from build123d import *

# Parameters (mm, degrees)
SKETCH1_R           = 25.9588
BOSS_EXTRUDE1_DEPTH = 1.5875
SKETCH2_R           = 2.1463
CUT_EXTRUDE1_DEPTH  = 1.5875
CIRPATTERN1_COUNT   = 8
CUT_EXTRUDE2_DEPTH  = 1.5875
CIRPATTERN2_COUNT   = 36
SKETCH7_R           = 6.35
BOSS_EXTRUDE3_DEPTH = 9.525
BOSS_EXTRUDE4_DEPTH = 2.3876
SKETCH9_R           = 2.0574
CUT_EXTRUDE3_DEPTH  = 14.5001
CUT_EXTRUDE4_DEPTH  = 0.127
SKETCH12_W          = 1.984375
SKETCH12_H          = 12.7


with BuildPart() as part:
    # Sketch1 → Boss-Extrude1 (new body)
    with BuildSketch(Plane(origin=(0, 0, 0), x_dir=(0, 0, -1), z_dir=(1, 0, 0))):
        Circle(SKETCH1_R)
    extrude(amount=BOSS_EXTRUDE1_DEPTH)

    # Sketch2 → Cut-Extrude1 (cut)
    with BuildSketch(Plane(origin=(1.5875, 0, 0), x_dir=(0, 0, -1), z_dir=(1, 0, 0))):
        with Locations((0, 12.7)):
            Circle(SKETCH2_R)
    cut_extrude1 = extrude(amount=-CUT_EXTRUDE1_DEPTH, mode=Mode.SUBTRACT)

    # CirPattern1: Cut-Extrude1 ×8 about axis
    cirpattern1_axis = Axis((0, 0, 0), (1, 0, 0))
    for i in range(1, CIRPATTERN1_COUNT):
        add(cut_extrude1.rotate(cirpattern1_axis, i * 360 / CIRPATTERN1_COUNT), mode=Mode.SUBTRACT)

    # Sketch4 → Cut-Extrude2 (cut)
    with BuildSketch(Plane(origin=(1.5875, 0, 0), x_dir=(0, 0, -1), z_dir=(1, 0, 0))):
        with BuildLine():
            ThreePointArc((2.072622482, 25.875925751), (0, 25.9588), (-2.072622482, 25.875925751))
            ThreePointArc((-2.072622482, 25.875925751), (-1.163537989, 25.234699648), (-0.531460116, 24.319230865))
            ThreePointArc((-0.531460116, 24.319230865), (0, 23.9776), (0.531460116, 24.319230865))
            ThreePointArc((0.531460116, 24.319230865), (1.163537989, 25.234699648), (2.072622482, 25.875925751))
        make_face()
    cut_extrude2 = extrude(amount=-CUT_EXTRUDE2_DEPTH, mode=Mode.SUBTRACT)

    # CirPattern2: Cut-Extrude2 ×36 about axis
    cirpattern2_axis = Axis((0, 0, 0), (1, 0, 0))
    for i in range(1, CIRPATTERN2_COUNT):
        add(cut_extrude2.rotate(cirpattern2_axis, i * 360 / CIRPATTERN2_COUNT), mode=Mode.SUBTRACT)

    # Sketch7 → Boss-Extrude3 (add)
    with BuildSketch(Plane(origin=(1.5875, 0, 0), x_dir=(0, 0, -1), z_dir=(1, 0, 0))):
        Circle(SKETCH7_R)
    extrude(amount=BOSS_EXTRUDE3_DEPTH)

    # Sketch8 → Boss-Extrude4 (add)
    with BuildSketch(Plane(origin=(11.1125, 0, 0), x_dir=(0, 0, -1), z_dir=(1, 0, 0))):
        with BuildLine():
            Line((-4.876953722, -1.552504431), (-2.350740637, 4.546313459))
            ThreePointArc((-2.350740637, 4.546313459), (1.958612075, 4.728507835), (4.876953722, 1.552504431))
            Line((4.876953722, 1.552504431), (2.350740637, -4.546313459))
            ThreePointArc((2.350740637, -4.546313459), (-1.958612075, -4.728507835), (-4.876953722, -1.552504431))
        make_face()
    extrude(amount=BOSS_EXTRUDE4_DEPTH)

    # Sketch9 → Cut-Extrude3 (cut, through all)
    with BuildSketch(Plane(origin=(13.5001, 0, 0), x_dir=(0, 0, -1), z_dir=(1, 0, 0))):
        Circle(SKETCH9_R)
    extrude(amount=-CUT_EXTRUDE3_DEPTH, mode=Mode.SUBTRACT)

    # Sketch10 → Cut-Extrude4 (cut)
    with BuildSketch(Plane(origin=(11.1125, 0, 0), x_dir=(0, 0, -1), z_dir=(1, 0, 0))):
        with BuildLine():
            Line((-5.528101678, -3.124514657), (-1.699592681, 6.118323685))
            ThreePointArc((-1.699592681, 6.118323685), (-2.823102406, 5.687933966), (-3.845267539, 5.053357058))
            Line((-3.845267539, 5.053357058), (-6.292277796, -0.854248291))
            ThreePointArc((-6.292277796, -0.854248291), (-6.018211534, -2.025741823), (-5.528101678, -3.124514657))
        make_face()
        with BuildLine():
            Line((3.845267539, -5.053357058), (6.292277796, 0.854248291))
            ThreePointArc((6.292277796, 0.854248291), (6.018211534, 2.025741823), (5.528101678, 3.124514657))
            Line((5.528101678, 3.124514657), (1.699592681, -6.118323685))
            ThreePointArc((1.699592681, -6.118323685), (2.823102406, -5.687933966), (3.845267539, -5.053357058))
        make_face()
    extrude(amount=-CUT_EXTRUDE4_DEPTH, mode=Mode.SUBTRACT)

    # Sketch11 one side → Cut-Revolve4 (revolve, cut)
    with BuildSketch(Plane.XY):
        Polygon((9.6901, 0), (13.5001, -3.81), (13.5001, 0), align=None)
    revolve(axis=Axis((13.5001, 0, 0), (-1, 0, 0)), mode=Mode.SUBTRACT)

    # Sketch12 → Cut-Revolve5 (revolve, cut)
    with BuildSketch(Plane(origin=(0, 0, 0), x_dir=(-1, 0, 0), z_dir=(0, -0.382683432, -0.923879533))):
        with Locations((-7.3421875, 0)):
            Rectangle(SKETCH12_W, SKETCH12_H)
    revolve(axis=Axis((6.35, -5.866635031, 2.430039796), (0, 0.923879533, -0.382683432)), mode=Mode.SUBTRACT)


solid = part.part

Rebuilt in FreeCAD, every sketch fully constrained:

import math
import FreeCAD as App
import Part
import Sketcher
from FreeCAD import Vector
Q = App.Units.Quantity

doc = App.newDocument("Part")
body = doc.addObject("PartDesign::Body", "Body")

# Sketch on YZ plane
sketch1 = body.newObject("Sketcher::SketchObject", "Sketch")
sketch1.AttachmentSupport = (doc.getObject("YZ_Plane"), [""])
sketch1.MapMode = "FlatFace"
sketch1.addGeometry(Part.Circle(Vector(0, 0, 0), Vector(0, 0, 1), 26), False)
sketch1.addConstraint(Sketcher.Constraint("Coincident", 0, 3, -1, 1))
sketch1.addConstraint(Sketcher.Constraint("Diameter", 0, Q("2.044 in")))
pad1 = body.newObject("PartDesign::Pad", "Pad")
pad1.Profile = sketch1
pad1.Length = Q("0.0625 in")

# Sketch on YZ plane
sketch2 = body.newObject("Sketcher::SketchObject", "Sketch001")
sketch2.AttachmentSupport = (doc.getObject("YZ_Plane"), [""])
sketch2.MapMode = "FlatFace"
sketch2.AttachmentOffset = App.Placement(Vector(0, 0, 0.0625 * 25.4), App.Rotation())
sketch2.addGeometry(Part.Circle(Vector(12.7, 0, 0), Vector(0, 0, 1), 2.1), False)
sketch2.addConstraint(Sketcher.Constraint("PointOnObject", 0, 3, -1))
sketch2.addConstraint(Sketcher.Constraint("Diameter", 0, Q("0.169 in")))
sketch2.addConstraint(Sketcher.Constraint("DistanceX", -1, 1, 0, 3, Q("0.5 in")))
pocket1 = body.newObject("PartDesign::Pocket", "Pocket")
pocket1.Profile = sketch2
pocket1.Length = Q("0.0625 in")
doc.recompute()

polarpattern = body.newObject("PartDesign::PolarPattern", "PolarPattern")
polarpattern.Originals = [pocket1]
polarpattern.Axis = (doc.getObject("X_Axis"), [""])
polarpattern.Angle = 360
polarpattern.Occurrences = 8
body.Tip = polarpattern

# Sketch on YZ plane
sketch3 = body.newObject("Sketcher::SketchObject", "Sketch002")
sketch3.AttachmentSupport = (doc.getObject("YZ_Plane"), [""])
sketch3.MapMode = "FlatFace"
sketch3.AttachmentOffset = App.Placement(Vector(0, 0, 0.0625 * 25.4), App.Rotation())
sketch3.addGeometry(Part.ArcOfCircle(Part.Circle(Vector(0, 0, 0), Vector(0, 0, 1), 26), math.radians(-4.58), math.radians(4.58)), False)
sketch3.addGeometry(Part.ArcOfCircle(Part.Circle(Vector(23, 3.4, 0), Vector(0, 0, 1), 3.2), math.radians(-65), math.radians(-25)), False)
sketch3.addGeometry(Part.ArcOfCircle(Part.Circle(Vector(24.6, 0, 0), Vector(0, 0, 1), 0.6), math.radians(115), math.radians(245)), False)
sketch3.addGeometry(Part.ArcOfCircle(Part.Circle(Vector(23, -3.4, 0), Vector(0, 0, 1), 3.2), math.radians(25), math.radians(65)), False)
sketch3.addConstraint(Sketcher.Constraint("Coincident", 0, 2, 1, 2))
sketch3.addConstraint(Sketcher.Constraint("Tangent", 1, 1, 2, 1))
sketch3.addConstraint(Sketcher.Constraint("Tangent", 2, 2, 3, 2))
sketch3.addConstraint(Sketcher.Constraint("Coincident", 3, 1, 0, 1))
sketch3.addConstraint(Sketcher.Constraint("Coincident", 0, 3, -1, 1))
sketch3.addConstraint(Sketcher.Constraint("Equal", 1, 3))
sketch3.addConstraint(Sketcher.Constraint("Symmetric", 1, 3, 3, 3, -1))
sketch3.addConstraint(Sketcher.Constraint("Radius", 0, Q("1.022 in")))
sketch3.addConstraint(Sketcher.Constraint("Radius", 1, Q("0.125 in")))
sketch3.addConstraint(Sketcher.Constraint("Radius", 2, Q("0.023 in")))
sketch3.addConstraint(Sketcher.Constraint("DistanceX", -1, 1, 2, 3, Q("0.967 in")))
sketch3.addConstraint(Sketcher.Constraint("DistanceX", -1, 1, 1, 3, Q("23.00092 mm")))
pocket2 = body.newObject("PartDesign::Pocket", "Pocket001")
pocket2.Profile = sketch3
pocket2.Length = Q("0.0625 in")
doc.recompute()

polarpattern2 = body.newObject("PartDesign::PolarPattern", "PolarPattern001")
polarpattern2.Originals = [pocket2]
polarpattern2.Axis = (doc.getObject("X_Axis"), [""])
polarpattern2.Angle = 360
polarpattern2.Occurrences = 36
body.Tip = polarpattern2

# Sketch on YZ plane
sketch4 = body.newObject("Sketcher::SketchObject", "Sketch003")
sketch4.AttachmentSupport = (doc.getObject("YZ_Plane"), [""])
sketch4.MapMode = "FlatFace"
sketch4.AttachmentOffset = App.Placement(Vector(0, 0, 0.0625 * 25.4), App.Rotation())
sketch4.addGeometry(Part.Circle(Vector(0, 0, 0), Vector(0, 0, 1), 6), False)
sketch4.addConstraint(Sketcher.Constraint("Coincident", 0, 3, -1, 1))
sketch4.addConstraint(Sketcher.Constraint("Diameter", 0, Q("0.5 in")))
pad2 = body.newObject("PartDesign::Pad", "Pad001")
pad2.Profile = sketch4
pad2.Length = Q("0.375 in")

# Sketch on YZ plane
sketch5 = body.newObject("Sketcher::SketchObject", "Sketch004")
sketch5.AttachmentSupport = (doc.getObject("YZ_Plane"), [""])
sketch5.MapMode = "FlatFace"
sketch5.AttachmentOffset = App.Placement(Vector(0, 0, 0.4375 * 25.4), App.Rotation())
sketch5.addGeometry(Part.LineSegment(Vector(5, 2, 0), Vector(-2, 5, 0)), False)
sketch5.addGeometry(Part.ArcOfCircle(Part.Circle(Vector(0, 0, 0), Vector(0, 0, 1), 5), math.radians(108), math.radians(207)), False)
sketch5.addGeometry(Part.LineSegment(Vector(-5, -2, 0), Vector(2, -5, 0)), False)
sketch5.addGeometry(Part.ArcOfCircle(Part.Circle(Vector(0, 0, 0), Vector(0, 0, 1), 5), math.radians(-72), math.radians(27)), False)
sketch5.addConstraint(Sketcher.Constraint("Coincident", 0, 2, 1, 1))
sketch5.addConstraint(Sketcher.Constraint("Coincident", 1, 2, 2, 1))
sketch5.addConstraint(Sketcher.Constraint("Coincident", 2, 2, 3, 1))
sketch5.addConstraint(Sketcher.Constraint("Coincident", 3, 2, 0, 1))
sketch5.addConstraint(Sketcher.Constraint("Coincident", 1, 3, -1, 1))
sketch5.addConstraint(Sketcher.Constraint("Coincident", 3, 3, -1, 1))
sketch5.addConstraint(Sketcher.Constraint("Equal", 1, 3))
sketch5.addConstraint(Sketcher.Constraint("Parallel", 0, 2))
sketch5.addConstraint(Sketcher.Constraint("Equal", 0, 2))
sketch5.addConstraint(Sketcher.Constraint("Angle", 0, Q("157.5 deg")))
sketch5.addConstraint(Sketcher.Constraint("Radius", 1, Q("0.2015 in")))
sketch5.addConstraint(Sketcher.Constraint("DistanceY", 1, 2, -1, 1, Q("2.350741 mm")))
pad3 = body.newObject("PartDesign::Pad", "Pad002")
pad3.Profile = sketch5
pad3.Length = Q("0.094 in")

# Sketch on YZ plane
sketch6 = body.newObject("Sketcher::SketchObject", "Sketch005")
sketch6.AttachmentSupport = (doc.getObject("YZ_Plane"), [""])
sketch6.MapMode = "FlatFace"
sketch6.AttachmentOffset = App.Placement(Vector(0, 0, 0.5315 * 25.4), App.Rotation())
sketch6.addGeometry(Part.Circle(Vector(0, 0, 0), Vector(0, 0, 1), 2.1), False)
sketch6.addConstraint(Sketcher.Constraint("Coincident", 0, 3, -1, 1))
sketch6.addConstraint(Sketcher.Constraint("Diameter", 0, Q("0.162 in")))
pocket3 = body.newObject("PartDesign::Pocket", "Pocket002")
pocket3.Profile = sketch6
pocket3.Type = "ThroughAll"

# Sketch on YZ plane
sketch7 = body.newObject("Sketcher::SketchObject", "Sketch006")
sketch7.AttachmentSupport = (doc.getObject("YZ_Plane"), [""])
sketch7.MapMode = "FlatFace"
sketch7.AttachmentOffset = App.Placement(Vector(0, 0, 0.4375 * 25.4), App.Rotation())
sketch7.addGeometry(Part.LineSegment(Vector(-3.1, 5.5, 0), Vector(6.1, 1.7, 0)), False)
sketch7.addGeometry(Part.ArcOfCircle(Part.Circle(Vector(0, 0, 0), Vector(0, 0, 1), 6.4), math.radians(16), math.radians(37)), False)
sketch7.addGeometry(Part.LineSegment(Vector(5.1, 3.8, 0), Vector(-0.9, 6.3, 0)), False)
sketch7.addGeometry(Part.ArcOfCircle(Part.Circle(Vector(0, 0, 0), Vector(0, 0, 1), 6.4), math.radians(98), math.radians(119)), False)
sketch7.addGeometry(Part.LineSegment(Vector(-5.1, -3.8, 0), Vector(0.9, -6.3, 0)), False)
sketch7.addGeometry(Part.ArcOfCircle(Part.Circle(Vector(0, 0, 0), Vector(0, 0, 1), 6.4), math.radians(-82), math.radians(-61)), False)
sketch7.addGeometry(Part.LineSegment(Vector(3.1, -5.5, 0), Vector(-6.1, -1.7, 0)), False)
sketch7.addGeometry(Part.ArcOfCircle(Part.Circle(Vector(0, 0, 0), Vector(0, 0, 1), 6.4), math.radians(-164), math.radians(-143)), False)
sketch7.addConstraint(Sketcher.Constraint("Coincident", 0, 2, 1, 1))
sketch7.addConstraint(Sketcher.Constraint("Coincident", 1, 2, 2, 1))
sketch7.addConstraint(Sketcher.Constraint("Coincident", 2, 2, 3, 1))
sketch7.addConstraint(Sketcher.Constraint("Coincident", 3, 2, 0, 1))
sketch7.addConstraint(Sketcher.Constraint("Coincident", 4, 2, 5, 1))
sketch7.addConstraint(Sketcher.Constraint("Coincident", 5, 2, 6, 1))
sketch7.addConstraint(Sketcher.Constraint("Coincident", 6, 2, 7, 1))
sketch7.addConstraint(Sketcher.Constraint("Coincident", 7, 2, 4, 1))
sketch7.addConstraint(Sketcher.Constraint("Coincident", 1, 3, -1, 1))
sketch7.addConstraint(Sketcher.Constraint("Coincident", 3, 3, -1, 1))
sketch7.addConstraint(Sketcher.Constraint("Coincident", 5, 3, -1, 1))
sketch7.addConstraint(Sketcher.Constraint("Coincident", 7, 3, -1, 1))
sketch7.addConstraint(Sketcher.Constraint("Equal", 1, 3))
sketch7.addConstraint(Sketcher.Constraint("Equal", 3, 5))
sketch7.addConstraint(Sketcher.Constraint("Equal", 5, 7))
sketch7.addConstraint(Sketcher.Constraint("Parallel", 0, 2))
sketch7.addConstraint(Sketcher.Constraint("Parallel", 2, 4))
sketch7.addConstraint(Sketcher.Constraint("Parallel", 4, 6))
sketch7.addConstraint(Sketcher.Constraint("Equal", 2, 4))
sketch7.addConstraint(Sketcher.Constraint("Equal", 0, 6))
sketch7.addConstraint(Sketcher.Constraint("Radius", 1, Q("0.25 in")))
sketch7.addConstraint(Sketcher.Constraint("Angle", 0, Q("-22.5 deg")))
sketch7.addConstraint(Sketcher.Constraint("DistanceY", -1, 1, 3, 2, Q("5.528102 mm")))
sketch7.addConstraint(Sketcher.Constraint("DistanceX", 2, 2, -1, 1, Q("0.854248 mm")))
pocket4 = body.newObject("PartDesign::Pocket", "Pocket003")
pocket4.Profile = sketch7
pocket4.Length = Q("0.005 in")

# Sketch on XY plane
sketch8 = body.newObject("Sketcher::SketchObject", "Sketch007")
sketch8.AttachmentSupport = (doc.getObject("XY_Plane"), [""])
sketch8.MapMode = "FlatFace"
sketch8.addGeometry(Part.LineSegment(Vector(9.7, 0, 0), Vector(13.5, -3.8, 0)), False)
sketch8.addGeometry(Part.LineSegment(Vector(13.5, -3.8, 0), Vector(13.5, 0, 0)), False)
sketch8.addGeometry(Part.LineSegment(Vector(13.5, 0, 0), Vector(9.7, 0, 0)), False)
sketch8.addConstraint(Sketcher.Constraint("Coincident", 0, 2, 1, 1))
sketch8.addConstraint(Sketcher.Constraint("Coincident", 1, 2, 2, 1))
sketch8.addConstraint(Sketcher.Constraint("Coincident", 2, 2, 0, 1))
sketch8.addConstraint(Sketcher.Constraint("Vertical", 1))
sketch8.addConstraint(Sketcher.Constraint("Horizontal", 2))
sketch8.addConstraint(Sketcher.Constraint("PointOnObject", 1, 2, -1))
sketch8.addConstraint(Sketcher.Constraint("Equal", 2, 1))
sketch8.addConstraint(Sketcher.Constraint("DistanceX", 2, 2, 2, 1, Q("0.15 in")))
sketch8.addConstraint(Sketcher.Constraint("DistanceX", -1, 1, 0, 2, Q("0.5315 in")))
groove = body.newObject("PartDesign::Groove", "Groove")
groove.Profile = sketch8
groove.ReferenceAxis = (sketch8, ["H_Axis"])
groove.Angle = 360

# Sketch on an angled plane
sketch9 = body.newObject("Sketcher::SketchObject", "Sketch008")
sketch9.Placement = App.Placement(Vector(0, 0, 0), App.Rotation(Vector(-1, 0, 0), Vector(0, 0.923879533, -0.382683432), Vector(0, -0.382683432, -0.923879533), "ZXY"))
sketch9.addGeometry(Part.LineSegment(Vector(-8.3, 6.4, 0), Vector(-8.3, -6.4, 0)), False)
sketch9.addGeometry(Part.LineSegment(Vector(-8.3, -6.4, 0), Vector(-6.3, -6.4, 0)), False)
sketch9.addGeometry(Part.LineSegment(Vector(-6.3, -6.4, 0), Vector(-6.3, 6.4, 0)), False)
sketch9.addGeometry(Part.LineSegment(Vector(-6.3, 6.4, 0), Vector(-8.3, 6.4, 0)), False)
sketch9.addGeometry(Part.LineSegment(Vector(-6.3, -6.4, 0), Vector(-6.3, 6.4, 0)), True)  # axis
sketch9.addConstraint(Sketcher.Constraint("Coincident", 0, 2, 1, 1))
sketch9.addConstraint(Sketcher.Constraint("Coincident", 1, 2, 2, 1))
sketch9.addConstraint(Sketcher.Constraint("Coincident", 2, 2, 3, 1))
sketch9.addConstraint(Sketcher.Constraint("Coincident", 3, 2, 0, 1))
sketch9.addConstraint(Sketcher.Constraint("Vertical", 0))
sketch9.addConstraint(Sketcher.Constraint("Horizontal", 1))
sketch9.addConstraint(Sketcher.Constraint("Vertical", 2))
sketch9.addConstraint(Sketcher.Constraint("Horizontal", 3))
sketch9.addConstraint(Sketcher.Constraint("Vertical", 4))
sketch9.addConstraint(Sketcher.Constraint("Coincident", 4, 1, 1, 2))
sketch9.addConstraint(Sketcher.Constraint("Horizontal", 3, 2, 4, 2))
sketch9.addConstraint(Sketcher.Constraint("DistanceY", 0, 2, 0, 1, Q("0.5 in")))
sketch9.addConstraint(Sketcher.Constraint("DistanceX", 1, 1, 1, 2, Q("0.078125 in")))
sketch9.addConstraint(Sketcher.Constraint("DistanceY", 0, 2, -1, 1, Q("0.25 in")))
sketch9.addConstraint(Sketcher.Constraint("DistanceX", 1, 2, -1, 1, Q("0.25 in")))
groove2 = body.newObject("PartDesign::Groove", "Groove001")
groove2.Profile = sketch9
groove2.ReferenceAxis = (sketch9, ["Axis0"])
groove2.Angle = 360

doc.recompute()
